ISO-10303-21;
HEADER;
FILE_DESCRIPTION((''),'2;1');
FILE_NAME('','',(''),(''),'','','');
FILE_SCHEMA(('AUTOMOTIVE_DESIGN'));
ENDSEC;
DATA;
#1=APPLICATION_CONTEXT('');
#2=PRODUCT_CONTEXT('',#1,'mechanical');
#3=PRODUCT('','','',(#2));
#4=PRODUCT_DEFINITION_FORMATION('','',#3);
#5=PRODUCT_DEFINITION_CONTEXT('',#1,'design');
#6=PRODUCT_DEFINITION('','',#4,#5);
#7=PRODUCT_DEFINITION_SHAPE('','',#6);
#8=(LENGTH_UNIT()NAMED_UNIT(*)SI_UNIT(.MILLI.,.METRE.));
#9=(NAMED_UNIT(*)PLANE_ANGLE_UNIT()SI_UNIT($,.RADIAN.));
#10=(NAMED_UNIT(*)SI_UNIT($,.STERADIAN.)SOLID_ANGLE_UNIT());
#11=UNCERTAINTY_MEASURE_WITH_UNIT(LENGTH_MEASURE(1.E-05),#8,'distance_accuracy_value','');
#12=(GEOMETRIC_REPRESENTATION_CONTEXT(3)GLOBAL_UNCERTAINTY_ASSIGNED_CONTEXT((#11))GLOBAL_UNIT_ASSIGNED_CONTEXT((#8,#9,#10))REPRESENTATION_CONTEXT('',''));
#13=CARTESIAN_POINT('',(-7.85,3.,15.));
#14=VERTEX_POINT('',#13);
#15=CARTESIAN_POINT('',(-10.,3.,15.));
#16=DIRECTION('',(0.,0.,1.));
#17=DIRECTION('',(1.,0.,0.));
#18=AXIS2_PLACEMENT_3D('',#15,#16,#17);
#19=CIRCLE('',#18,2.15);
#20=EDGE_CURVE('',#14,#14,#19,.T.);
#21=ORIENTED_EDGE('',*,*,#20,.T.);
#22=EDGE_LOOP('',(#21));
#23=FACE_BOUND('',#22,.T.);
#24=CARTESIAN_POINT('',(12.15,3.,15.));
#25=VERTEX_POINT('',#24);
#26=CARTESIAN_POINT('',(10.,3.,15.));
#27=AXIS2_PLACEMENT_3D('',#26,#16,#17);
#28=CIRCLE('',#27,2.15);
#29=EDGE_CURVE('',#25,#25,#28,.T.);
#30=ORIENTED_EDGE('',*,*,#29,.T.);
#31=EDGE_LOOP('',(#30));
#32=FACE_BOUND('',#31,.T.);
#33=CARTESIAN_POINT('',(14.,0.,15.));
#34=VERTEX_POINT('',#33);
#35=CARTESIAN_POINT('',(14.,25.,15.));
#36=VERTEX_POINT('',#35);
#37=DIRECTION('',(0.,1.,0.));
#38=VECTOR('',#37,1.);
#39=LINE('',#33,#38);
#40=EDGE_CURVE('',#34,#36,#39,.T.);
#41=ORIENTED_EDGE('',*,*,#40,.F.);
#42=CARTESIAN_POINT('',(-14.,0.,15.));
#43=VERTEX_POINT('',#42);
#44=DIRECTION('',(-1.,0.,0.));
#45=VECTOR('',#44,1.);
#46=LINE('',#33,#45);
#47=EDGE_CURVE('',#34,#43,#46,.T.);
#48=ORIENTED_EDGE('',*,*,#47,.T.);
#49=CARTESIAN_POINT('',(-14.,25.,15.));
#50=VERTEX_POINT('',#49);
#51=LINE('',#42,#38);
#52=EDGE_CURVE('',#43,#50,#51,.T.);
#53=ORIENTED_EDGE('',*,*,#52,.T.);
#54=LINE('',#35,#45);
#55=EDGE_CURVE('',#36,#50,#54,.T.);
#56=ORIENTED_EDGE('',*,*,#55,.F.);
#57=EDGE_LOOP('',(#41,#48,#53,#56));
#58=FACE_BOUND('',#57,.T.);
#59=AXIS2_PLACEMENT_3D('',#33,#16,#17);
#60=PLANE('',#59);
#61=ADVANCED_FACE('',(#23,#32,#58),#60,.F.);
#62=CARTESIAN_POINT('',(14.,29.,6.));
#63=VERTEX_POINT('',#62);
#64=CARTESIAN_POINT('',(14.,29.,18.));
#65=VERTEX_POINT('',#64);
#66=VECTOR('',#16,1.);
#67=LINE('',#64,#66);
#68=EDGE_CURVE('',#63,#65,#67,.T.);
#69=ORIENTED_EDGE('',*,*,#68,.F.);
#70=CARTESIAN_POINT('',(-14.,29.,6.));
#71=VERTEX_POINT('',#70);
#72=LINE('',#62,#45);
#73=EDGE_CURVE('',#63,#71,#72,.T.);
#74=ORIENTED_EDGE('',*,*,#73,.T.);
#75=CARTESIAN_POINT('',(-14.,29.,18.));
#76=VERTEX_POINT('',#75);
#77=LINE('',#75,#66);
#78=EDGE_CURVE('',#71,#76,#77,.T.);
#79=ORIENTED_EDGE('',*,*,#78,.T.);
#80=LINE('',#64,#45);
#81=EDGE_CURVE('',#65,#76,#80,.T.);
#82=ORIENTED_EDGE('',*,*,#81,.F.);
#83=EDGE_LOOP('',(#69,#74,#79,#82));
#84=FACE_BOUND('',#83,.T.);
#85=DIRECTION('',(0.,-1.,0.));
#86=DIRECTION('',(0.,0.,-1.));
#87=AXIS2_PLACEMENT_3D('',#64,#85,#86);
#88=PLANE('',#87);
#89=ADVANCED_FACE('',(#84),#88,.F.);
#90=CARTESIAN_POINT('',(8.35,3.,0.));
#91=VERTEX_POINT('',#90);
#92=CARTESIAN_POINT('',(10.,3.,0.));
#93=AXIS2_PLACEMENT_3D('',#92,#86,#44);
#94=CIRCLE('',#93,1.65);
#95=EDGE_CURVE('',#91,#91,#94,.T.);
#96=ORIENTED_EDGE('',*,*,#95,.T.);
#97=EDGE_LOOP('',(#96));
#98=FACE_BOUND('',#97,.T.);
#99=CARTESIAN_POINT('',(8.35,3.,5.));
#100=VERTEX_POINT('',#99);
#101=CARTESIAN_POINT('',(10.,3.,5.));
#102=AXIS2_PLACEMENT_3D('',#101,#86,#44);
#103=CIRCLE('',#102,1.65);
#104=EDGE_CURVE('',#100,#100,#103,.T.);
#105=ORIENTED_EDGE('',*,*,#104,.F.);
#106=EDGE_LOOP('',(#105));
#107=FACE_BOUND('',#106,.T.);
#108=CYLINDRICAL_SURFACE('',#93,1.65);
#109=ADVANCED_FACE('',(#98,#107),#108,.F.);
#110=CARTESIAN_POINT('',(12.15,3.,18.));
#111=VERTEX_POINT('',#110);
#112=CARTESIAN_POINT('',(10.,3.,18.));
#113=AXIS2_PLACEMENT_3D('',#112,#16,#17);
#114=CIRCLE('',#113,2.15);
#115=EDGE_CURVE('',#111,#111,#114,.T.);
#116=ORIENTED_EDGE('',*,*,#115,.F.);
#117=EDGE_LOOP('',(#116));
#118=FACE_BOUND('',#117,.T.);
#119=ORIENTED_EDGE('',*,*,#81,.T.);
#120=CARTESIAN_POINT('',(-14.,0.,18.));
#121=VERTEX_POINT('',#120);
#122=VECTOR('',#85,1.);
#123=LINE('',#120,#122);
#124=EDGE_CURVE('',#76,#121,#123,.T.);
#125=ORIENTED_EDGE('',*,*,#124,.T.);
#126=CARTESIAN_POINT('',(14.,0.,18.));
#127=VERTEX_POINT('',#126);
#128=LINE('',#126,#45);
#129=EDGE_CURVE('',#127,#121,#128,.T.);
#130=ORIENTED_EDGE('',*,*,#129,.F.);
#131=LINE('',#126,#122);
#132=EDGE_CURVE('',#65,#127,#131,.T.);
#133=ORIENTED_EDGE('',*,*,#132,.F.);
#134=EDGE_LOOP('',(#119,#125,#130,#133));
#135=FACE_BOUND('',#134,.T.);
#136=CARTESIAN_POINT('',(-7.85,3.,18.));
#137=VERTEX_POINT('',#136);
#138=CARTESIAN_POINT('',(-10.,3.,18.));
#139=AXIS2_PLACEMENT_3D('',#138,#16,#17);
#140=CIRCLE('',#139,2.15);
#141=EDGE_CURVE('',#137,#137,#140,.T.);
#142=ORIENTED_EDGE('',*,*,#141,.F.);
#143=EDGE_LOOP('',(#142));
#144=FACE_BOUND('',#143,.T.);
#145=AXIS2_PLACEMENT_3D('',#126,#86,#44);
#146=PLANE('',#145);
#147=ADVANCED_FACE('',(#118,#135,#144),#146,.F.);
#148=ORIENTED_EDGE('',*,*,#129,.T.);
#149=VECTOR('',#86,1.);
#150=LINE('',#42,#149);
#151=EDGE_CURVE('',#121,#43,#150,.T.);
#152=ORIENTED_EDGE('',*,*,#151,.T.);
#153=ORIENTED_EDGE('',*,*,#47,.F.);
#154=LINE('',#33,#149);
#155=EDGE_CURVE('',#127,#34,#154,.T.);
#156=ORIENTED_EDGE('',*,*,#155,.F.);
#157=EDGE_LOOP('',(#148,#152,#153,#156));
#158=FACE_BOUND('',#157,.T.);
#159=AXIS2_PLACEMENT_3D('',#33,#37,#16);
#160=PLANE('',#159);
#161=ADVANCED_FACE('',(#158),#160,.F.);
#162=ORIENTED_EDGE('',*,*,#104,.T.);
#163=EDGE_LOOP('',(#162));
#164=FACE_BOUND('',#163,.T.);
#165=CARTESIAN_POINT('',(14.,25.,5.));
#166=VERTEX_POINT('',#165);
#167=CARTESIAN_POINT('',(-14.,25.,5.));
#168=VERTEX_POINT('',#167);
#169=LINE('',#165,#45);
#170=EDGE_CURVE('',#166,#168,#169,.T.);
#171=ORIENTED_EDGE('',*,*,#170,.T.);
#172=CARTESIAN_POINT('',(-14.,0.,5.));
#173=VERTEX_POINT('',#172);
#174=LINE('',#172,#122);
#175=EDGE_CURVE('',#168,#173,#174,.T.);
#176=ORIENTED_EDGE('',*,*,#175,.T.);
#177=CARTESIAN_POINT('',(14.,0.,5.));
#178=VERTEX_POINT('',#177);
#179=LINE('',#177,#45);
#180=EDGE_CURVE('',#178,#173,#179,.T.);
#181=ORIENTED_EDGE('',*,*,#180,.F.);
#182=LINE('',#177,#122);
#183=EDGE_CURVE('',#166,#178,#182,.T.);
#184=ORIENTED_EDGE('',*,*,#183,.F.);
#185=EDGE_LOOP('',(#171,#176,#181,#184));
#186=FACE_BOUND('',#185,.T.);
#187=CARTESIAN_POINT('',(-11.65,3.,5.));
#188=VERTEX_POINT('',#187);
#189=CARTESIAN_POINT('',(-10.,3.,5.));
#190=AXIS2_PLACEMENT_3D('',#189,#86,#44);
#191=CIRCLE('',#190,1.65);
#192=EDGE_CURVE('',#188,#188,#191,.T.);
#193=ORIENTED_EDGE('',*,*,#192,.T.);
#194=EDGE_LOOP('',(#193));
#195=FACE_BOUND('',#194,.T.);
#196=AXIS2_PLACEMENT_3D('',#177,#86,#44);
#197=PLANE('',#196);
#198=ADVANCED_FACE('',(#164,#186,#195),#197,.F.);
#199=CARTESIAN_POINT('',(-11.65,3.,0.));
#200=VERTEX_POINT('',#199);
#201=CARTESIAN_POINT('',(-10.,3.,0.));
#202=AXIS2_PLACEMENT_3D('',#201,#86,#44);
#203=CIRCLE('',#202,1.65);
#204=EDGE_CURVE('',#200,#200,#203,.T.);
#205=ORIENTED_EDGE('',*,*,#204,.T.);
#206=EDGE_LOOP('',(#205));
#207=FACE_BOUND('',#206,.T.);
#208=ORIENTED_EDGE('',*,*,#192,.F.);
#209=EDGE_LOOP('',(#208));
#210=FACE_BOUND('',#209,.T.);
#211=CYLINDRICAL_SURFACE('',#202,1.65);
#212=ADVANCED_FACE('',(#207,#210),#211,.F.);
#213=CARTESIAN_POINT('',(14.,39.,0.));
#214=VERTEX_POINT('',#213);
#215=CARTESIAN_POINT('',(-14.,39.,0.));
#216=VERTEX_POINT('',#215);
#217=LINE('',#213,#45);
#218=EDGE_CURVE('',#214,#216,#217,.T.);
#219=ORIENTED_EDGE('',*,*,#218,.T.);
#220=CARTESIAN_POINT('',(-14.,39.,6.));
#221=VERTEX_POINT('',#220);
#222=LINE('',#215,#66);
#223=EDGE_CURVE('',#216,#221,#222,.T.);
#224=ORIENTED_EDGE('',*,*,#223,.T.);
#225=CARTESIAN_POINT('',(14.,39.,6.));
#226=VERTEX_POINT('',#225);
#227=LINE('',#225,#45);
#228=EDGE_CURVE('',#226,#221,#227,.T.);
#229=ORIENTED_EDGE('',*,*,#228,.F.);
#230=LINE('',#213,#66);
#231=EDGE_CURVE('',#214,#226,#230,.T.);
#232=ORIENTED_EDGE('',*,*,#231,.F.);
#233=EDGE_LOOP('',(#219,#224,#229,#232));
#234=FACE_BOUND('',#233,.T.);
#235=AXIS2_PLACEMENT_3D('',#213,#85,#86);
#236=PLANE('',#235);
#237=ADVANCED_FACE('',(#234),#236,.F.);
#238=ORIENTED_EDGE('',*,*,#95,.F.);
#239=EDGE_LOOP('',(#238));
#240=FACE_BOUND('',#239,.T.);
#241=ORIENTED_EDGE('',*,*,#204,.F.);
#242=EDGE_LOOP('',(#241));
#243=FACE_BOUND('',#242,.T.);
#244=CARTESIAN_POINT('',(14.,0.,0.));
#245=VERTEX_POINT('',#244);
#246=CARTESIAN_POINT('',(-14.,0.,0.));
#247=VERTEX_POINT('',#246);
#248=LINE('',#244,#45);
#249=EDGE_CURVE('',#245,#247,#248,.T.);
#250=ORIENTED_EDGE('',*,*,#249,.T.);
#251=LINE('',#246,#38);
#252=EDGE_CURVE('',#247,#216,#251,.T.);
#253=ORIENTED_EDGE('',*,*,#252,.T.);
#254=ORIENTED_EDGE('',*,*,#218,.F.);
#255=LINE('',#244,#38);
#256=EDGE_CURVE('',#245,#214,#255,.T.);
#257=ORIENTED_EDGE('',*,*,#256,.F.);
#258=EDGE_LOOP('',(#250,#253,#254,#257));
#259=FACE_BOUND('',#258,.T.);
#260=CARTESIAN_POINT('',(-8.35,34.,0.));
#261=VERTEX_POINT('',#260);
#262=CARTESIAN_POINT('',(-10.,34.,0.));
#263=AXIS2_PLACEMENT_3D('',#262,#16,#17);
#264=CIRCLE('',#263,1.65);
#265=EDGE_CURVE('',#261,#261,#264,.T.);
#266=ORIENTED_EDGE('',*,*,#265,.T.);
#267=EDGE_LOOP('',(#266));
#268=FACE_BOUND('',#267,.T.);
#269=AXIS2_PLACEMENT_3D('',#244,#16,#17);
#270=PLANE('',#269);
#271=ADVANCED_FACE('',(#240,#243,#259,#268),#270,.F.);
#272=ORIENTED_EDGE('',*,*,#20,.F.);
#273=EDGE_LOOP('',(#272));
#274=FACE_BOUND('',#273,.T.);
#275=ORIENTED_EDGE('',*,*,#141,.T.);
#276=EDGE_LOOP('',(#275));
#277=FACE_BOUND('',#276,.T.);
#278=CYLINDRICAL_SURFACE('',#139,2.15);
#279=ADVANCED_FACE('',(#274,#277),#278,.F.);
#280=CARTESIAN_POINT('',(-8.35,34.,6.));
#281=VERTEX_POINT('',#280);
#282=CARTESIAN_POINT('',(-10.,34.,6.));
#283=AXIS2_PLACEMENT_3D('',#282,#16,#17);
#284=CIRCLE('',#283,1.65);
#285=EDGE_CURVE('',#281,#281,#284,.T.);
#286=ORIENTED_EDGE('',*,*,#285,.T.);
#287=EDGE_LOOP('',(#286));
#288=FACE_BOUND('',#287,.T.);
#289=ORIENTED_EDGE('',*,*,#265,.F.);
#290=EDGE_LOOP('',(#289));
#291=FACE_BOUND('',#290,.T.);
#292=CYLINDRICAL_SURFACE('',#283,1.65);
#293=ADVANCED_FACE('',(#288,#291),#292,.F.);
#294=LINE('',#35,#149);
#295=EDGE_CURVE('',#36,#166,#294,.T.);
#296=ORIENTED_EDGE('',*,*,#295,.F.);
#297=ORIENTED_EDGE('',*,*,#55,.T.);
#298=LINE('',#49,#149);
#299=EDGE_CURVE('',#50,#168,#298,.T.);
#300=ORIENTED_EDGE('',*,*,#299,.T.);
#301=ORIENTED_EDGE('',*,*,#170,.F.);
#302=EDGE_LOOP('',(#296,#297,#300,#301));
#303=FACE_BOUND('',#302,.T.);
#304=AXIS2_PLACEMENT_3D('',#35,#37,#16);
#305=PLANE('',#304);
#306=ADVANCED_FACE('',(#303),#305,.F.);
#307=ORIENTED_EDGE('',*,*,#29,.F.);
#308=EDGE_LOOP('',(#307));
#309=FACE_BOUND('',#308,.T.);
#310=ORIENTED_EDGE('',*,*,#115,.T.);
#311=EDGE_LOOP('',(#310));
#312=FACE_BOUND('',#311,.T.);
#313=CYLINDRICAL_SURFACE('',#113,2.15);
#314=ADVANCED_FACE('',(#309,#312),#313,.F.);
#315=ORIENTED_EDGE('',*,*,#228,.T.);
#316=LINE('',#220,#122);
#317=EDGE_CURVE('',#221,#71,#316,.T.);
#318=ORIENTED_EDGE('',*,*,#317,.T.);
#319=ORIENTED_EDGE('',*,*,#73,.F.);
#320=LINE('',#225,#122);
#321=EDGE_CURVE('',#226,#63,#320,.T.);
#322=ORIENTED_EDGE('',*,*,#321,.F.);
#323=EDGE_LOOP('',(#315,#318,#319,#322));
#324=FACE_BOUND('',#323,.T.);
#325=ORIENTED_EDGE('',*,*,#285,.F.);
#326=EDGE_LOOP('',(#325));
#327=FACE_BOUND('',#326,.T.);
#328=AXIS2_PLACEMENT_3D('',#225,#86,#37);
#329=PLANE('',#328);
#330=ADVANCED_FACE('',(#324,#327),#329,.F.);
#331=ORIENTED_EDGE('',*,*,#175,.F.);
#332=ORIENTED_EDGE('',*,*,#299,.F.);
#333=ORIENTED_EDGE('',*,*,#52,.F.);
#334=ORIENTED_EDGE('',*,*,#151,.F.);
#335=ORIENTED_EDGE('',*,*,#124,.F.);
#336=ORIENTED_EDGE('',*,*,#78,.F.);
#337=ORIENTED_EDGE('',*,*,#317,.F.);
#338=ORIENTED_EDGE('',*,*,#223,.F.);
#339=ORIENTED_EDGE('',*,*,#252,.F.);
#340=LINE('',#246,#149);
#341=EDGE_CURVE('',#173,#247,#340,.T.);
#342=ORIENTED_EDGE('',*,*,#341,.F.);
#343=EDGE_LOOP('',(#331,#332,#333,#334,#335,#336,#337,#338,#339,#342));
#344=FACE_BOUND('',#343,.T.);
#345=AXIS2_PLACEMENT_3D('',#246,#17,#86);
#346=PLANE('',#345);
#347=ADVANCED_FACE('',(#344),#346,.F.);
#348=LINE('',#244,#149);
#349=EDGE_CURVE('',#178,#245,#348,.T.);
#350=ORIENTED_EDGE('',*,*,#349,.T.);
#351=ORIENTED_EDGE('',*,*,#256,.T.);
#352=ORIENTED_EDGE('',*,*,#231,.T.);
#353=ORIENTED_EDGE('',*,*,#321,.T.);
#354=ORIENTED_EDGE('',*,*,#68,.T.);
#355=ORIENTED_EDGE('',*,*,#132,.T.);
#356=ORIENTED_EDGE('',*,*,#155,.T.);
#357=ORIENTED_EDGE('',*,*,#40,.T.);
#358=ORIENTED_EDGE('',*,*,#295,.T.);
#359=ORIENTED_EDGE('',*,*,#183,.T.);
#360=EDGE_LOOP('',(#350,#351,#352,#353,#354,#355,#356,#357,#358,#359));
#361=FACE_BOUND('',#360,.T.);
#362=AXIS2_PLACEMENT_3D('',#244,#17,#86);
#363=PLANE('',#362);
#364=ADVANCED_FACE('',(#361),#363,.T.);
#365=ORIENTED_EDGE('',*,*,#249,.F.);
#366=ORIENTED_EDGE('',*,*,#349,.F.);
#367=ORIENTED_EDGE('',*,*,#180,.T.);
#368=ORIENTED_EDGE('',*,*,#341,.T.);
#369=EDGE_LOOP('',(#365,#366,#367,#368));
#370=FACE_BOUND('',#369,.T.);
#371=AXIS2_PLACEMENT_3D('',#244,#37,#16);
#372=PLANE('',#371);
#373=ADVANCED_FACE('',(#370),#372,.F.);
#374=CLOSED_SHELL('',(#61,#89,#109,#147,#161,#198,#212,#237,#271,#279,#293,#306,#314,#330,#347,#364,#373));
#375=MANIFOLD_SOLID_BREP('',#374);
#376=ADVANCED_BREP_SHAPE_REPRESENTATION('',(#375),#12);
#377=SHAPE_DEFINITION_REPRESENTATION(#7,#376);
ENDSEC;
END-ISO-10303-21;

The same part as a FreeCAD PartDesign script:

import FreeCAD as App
import Part
import Sketcher

V = App.Vector


def add_polygon(sketch, points):
    """Adds a closed chain of lines whose ends are joined by coincident constraints."""
    first, n = sketch.GeometryCount, len(points)
    for a, b in zip(points, points[1:] + points[:1]):
        sketch.addGeometry(Part.LineSegment(App.Vector(*a, 0), App.Vector(*b, 0)), False)
    for i in range(n):
        sketch.addConstraint(Sketcher.Constraint("Coincident", first + i, 2, first + (i + 1) % n, 1))

doc = App.newDocument("Part")
body = doc.addObject("PartDesign::Body", "Body")

# Sketch on YZ plane
sketch1 = doc.addObject("Sketcher::SketchObject", "Sketch")
body.addObject(sketch1)
sketch1.AttachmentSupport = (doc.YZ_Plane, [""])
sketch1.MapMode = "FlatFace"
add_polygon(sketch1, [(0, 18), (0, 15), (25, 15), (25, 5), (0, 5), (0, 0), (39, 0), (39, 6), (29, 6), (29, 18)])  # lines 0-9
sketch1.addConstraint(Sketcher.Constraint("Vertical", 0))
sketch1.addConstraint(Sketcher.Constraint("Horizontal", 1))
sketch1.addConstraint(Sketcher.Constraint("Vertical", 2))
sketch1.addConstraint(Sketcher.Constraint("Horizontal", 3))
sketch1.addConstraint(Sketcher.Constraint("Vertical", 4))
sketch1.addConstraint(Sketcher.Constraint("Horizontal", 5))
sketch1.addConstraint(Sketcher.Constraint("Vertical", 6))
sketch1.addConstraint(Sketcher.Constraint("Horizontal", 7))
sketch1.addConstraint(Sketcher.Constraint("Vertical", 8))
sketch1.addConstraint(Sketcher.Constraint("Horizontal", 9))
sketch1.addConstraint(Sketcher.Constraint("Coincident", 4, 2, -1, 1))
sketch1.addConstraint(Sketcher.Constraint("PointOnObject", 0, 2, -2))
sketch1.addConstraint(Sketcher.Constraint("Equal", 7, 2))
sketch1.addConstraint(Sketcher.Constraint("DistanceX", 1, 1, 1, 2, 25.0))
sketch1.addConstraint(Sketcher.Constraint("DistanceX", 5, 1, 5, 2, 39.0))
sketch1.addConstraint(Sketcher.Constraint("DistanceX", 7, 2, 7, 1, 10.0))
sketch1.addConstraint(Sketcher.Constraint("DistanceY", 0, 2, 0, 1, 3.0))
sketch1.addConstraint(Sketcher.Constraint("DistanceY", 4, 2, 4, 1, 5.0))
sketch1.addConstraint(Sketcher.Constraint("DistanceY", 6, 1, 6, 2, 6.0))
pad1 = doc.addObject("PartDesign::Pad", "Pad")
body.addObject(pad1)
pad1.Profile = sketch1
pad1.Length = 28
pad1.Midplane = True

# Sketch on XY plane
sketch2 = doc.addObject("Sketcher::SketchObject", "Sketch001")
body.addObject(sketch2)
sketch2.AttachmentSupport = (doc.XY_Plane, [""])
sketch2.MapMode = "FlatFace"
sketch2.AttachmentOffset = App.Placement(V(0, 0, 6), App.Rotation())
sketch2.addGeometry(Part.Circle(V(-10, 34, 0), V(0, 0, 1), 1.6), False)
sketch2.addConstraint(Sketcher.Constraint("Diameter", 0, 3.3))
sketch2.addConstraint(Sketcher.Constraint("DistanceX", 0, 3, -1, 1, 10.0))
sketch2.addConstraint(Sketcher.Constraint("DistanceY", -1, 1, 0, 3, 34.0))
doc.recompute()
hole = doc.addObject("PartDesign::Hole", "Hole")
body.addObject(hole)
hole.Profile = sketch2
hole.ThreadType = "None"
hole.Diameter = 3.3
hole.DepthType = "ThroughAll"

# Sketch on XY plane
sketch3 = doc.addObject("Sketcher::SketchObject", "Sketch002")
body.addObject(sketch3)
sketch3.AttachmentSupport = (doc.XY_Plane, [""])
sketch3.MapMode = "FlatFace"
sketch3.addGeometry(Part.Circle(V(-10, 3, 0), V(0, 0, 1), 1.6), False)
sketch3.addGeometry(Part.Circle(V(10, 3, 0), V(0, 0, 1), 1.6), False)
sketch3.addConstraint(Sketcher.Constraint("Equal", 0, 1))
sketch3.addConstraint(Sketcher.Constraint("Symmetric", 0, 3, 1, 3, -2))
sketch3.addConstraint(Sketcher.Constraint("Diameter", 0, 3.3))
sketch3.addConstraint(Sketcher.Constraint("DistanceX", 0, 3, -1, 1, 10.0))
sketch3.addConstraint(Sketcher.Constraint("DistanceY", -1, 1, 0, 3, 3.0))
doc.recompute()
hole2 = doc.addObject("PartDesign::Hole", "Hole001")
body.addObject(hole2)
hole2.Profile = sketch3
hole2.ThreadType = "None"
hole2.Diameter = 3.3
hole2.DepthType = "Dimension"
hole2.Depth = 5
hole2.DrillPoint = "Flat"
hole2.Reversed = True

# Sketch on XY plane
sketch4 = doc.addObject("Sketcher::SketchObject", "Sketch003")
body.addObject(sketch4)
sketch4.AttachmentSupport = (doc.XY_Plane, [""])
sketch4.MapMode = "FlatFace"
sketch4.AttachmentOffset = App.Placement(V(0, 0, 18), App.Rotation())
sketch4.addGeometry(Part.Circle(V(-10, 3, 0), V(0, 0, 1), 2.1), False)
sketch4.addGeometry(Part.Circle(V(10, 3, 0), V(0, 0, 1), 2.1), False)
sketch4.addConstraint(Sketcher.Constraint("Equal", 0, 1))
sketch4.addConstraint(Sketcher.Constraint("Symmetric", 0, 3, 1, 3, -2))
sketch4.addConstraint(Sketcher.Constraint("Diameter", 0, 4.3))
sketch4.addConstraint(Sketcher.Constraint("DistanceX", 0, 3, -1, 1, 10.0))
sketch4.addConstraint(Sketcher.Constraint("DistanceY", -1, 1, 0, 3, 3.0))
doc.recompute()
hole3 = doc.addObject("PartDesign::Hole", "Hole002")
body.addObject(hole3)
hole3.Profile = sketch4
hole3.ThreadType = "None"
hole3.Diameter = 4.3
hole3.DepthType = "Dimension"
hole3.Depth = 3
hole3.DrillPoint = "Flat"

doc.recompute()
